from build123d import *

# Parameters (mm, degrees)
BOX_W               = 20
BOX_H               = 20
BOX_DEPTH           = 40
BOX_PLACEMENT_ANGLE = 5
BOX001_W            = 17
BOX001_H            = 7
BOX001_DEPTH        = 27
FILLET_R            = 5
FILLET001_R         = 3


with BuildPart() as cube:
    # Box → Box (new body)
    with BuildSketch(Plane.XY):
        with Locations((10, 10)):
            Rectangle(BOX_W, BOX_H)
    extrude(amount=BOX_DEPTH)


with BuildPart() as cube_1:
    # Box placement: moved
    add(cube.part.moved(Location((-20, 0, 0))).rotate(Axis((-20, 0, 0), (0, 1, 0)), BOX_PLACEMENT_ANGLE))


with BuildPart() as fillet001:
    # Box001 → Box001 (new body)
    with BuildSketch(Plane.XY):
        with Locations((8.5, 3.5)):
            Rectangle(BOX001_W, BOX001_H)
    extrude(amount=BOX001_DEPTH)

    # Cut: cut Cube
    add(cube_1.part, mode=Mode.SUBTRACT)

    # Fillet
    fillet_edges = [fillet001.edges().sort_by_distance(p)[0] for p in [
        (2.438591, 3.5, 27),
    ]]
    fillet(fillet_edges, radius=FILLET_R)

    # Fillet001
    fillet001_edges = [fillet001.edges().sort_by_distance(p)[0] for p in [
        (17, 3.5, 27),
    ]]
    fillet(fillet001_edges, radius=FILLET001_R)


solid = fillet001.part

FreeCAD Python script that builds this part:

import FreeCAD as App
import Part
import Sketcher
from FreeCAD import Vector


def edges_at(feature, points):
    """Names of the edges that pass closest to the given points."""
    edges = feature.Shape.Edges
    near = lambda p: min(range(len(edges)), key=lambda i: edges[i].distToShape(Part.Vertex(*p))[0])
    return sorted({f"Edge{near(p) + 1}" for p in points})

doc = App.newDocument("Part")
body = doc.addObject("PartDesign::Body", "Body")

# Sketch on XY plane
sketch1 = body.newObject("Sketcher::SketchObject", "Sketch")
sketch1.AttachmentSupport = (doc.getObject("XY_Plane"), [""])
sketch1.MapMode = "FlatFace"
sketch1.addGeometry([
    Part.LineSegment(Vector(0, 20, 0), Vector(0, 0, 0)),
    Part.LineSegment(Vector(0, 0, 0), Vector(20, 0, 0)),
    Part.LineSegment(Vector(20, 0, 0), Vector(20, 20, 0)),
    Part.LineSegment(Vector(20, 20, 0), Vector(0, 20, 0)),
], False)
sketch1.addConstraint([
    Sketcher.Constraint("Coincident", 0, 2, 1, 1),
    Sketcher.Constraint("Coincident", 1, 2, 2, 1),
    Sketcher.Constraint("Coincident", 2, 2, 3, 1),
    Sketcher.Constraint("Coincident", 3, 2, 0, 1),
    Sketcher.Constraint("Vertical", 0),
    Sketcher.Constraint("Horizontal", 1),
    Sketcher.Constraint("Vertical", 2),
    Sketcher.Constraint("Horizontal", 3),
    Sketcher.Constraint("Coincident", 0, 2, -1, 1),
    Sketcher.Constraint("Equal", 3, 0),
    Sketcher.Constraint("DistanceX", 1, 1, 1, 2, 20.0),
])
pad1 = body.newObject("PartDesign::Pad", "Pad")
pad1.Profile = sketch1
pad1.Length = 40
body2 = doc.addObject("PartDesign::Body", "Body001")
doc.recompute()

body.Placement = App.Placement(Vector(-20, 0, 0), App.Rotation(Vector(0, 1, 0), 5))
boolean = body2.newObject("PartDesign::Boolean", "Boolean")
boolean.Type = "Fuse"
boolean.addObjects([body])
body3 = doc.addObject("PartDesign::Body", "Body002")

# Sketch on XY plane
sketch2 = body3.newObject("Sketcher::SketchObject", "Sketch001")
sketch2.AttachmentSupport = (doc.getObject("XY_Plane002"), [""])
sketch2.MapMode = "FlatFace"
sketch2.addGeometry([
    Part.LineSegment(Vector(0, 7, 0), Vector(0, 0, 0)),
    Part.LineSegment(Vector(0, 0, 0), Vector(17, 0, 0)),
    Part.LineSegment(Vector(17, 0, 0), Vector(17, 7, 0)),
    Part.LineSegment(Vector(17, 7, 0), Vector(0, 7, 0)),
], False)
sketch2.addConstraint([
    Sketcher.Constraint("Coincident", 0, 2, 1, 1),
    Sketcher.Constraint("Coincident", 1, 2, 2, 1),
    Sketcher.Constraint("Coincident", 2, 2, 3, 1),
    Sketcher.Constraint("Coincident", 3, 2, 0, 1),
    Sketcher.Constraint("Vertical", 0),
    Sketcher.Constraint("Horizontal", 1),
    Sketcher.Constraint("Vertical", 2),
    Sketcher.Constraint("Horizontal", 3),
    Sketcher.Constraint("Coincident", 0, 2, -1, 1),
    Sketcher.Constraint("DistanceX", 1, 1, 1, 2, 17.0),
    Sketcher.Constraint("DistanceY", 0, 2, 0, 1, 7.0),
])
pad2 = body3.newObject("PartDesign::Pad", "Pad001")
pad2.Profile = sketch2
pad2.Length = 27
doc.recompute()

boolean2 = body3.newObject("PartDesign::Boolean", "Boolean001")
boolean2.Type = "Cut"
boolean2.addObjects([body2])
doc.recompute()

fillet = body3.newObject("PartDesign::Fillet", "Fillet")
fillet.Base = (boolean2, edges_at(boolean2, [(2.439, 3.5, 27)]))
fillet.Radius = 5
doc.recompute()

fillet2 = body3.newObject("PartDesign::Fillet", "Fillet001")
fillet2.Base = (fillet, edges_at(fillet, [(17, 3.5, 27)]))
fillet2.Radius = 3

doc.recompute()
